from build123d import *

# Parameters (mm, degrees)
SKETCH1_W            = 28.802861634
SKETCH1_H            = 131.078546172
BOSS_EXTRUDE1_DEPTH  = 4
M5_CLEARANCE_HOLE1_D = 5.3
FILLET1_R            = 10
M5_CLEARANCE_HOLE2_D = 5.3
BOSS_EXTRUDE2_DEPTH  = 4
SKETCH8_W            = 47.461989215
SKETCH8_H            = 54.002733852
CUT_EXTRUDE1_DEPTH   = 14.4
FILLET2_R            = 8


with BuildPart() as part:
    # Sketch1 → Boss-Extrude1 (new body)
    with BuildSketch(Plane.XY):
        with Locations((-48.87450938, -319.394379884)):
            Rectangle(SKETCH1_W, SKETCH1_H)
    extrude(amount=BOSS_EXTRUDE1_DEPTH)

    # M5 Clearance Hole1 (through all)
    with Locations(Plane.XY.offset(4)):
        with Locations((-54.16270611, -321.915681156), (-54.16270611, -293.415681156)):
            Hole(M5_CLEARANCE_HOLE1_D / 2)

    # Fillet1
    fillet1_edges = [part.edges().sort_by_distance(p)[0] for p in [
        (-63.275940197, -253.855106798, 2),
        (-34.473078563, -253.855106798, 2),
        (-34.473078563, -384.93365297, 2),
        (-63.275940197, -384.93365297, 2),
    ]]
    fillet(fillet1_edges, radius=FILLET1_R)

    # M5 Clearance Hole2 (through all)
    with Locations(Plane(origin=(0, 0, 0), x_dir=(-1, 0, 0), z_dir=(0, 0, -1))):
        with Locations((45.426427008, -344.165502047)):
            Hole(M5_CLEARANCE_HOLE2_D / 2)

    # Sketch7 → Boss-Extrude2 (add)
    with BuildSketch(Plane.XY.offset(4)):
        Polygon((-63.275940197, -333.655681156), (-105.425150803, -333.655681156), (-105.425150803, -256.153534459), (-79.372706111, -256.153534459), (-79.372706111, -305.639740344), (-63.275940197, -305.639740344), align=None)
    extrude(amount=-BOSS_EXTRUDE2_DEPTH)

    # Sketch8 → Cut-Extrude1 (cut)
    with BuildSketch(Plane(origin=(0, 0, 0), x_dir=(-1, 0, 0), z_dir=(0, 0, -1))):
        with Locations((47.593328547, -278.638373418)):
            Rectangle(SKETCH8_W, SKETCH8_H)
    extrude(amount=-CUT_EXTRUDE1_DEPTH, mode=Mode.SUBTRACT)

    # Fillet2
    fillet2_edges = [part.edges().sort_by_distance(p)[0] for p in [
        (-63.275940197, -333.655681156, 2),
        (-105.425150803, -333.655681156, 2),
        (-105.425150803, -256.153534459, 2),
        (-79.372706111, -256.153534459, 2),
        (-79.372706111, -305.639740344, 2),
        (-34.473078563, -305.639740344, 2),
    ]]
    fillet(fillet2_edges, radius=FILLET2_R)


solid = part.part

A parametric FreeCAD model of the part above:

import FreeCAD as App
import Part
import Sketcher
from FreeCAD import Vector


def edges_at(feature, points):
    """Names of the edges that pass closest to the given points."""
    edges = feature.Shape.Edges
    near = lambda p: min(range(len(edges)), key=lambda i: edges[i].distToShape(Part.Vertex(*p))[0])
    return sorted({f"Edge{near(p) + 1}" for p in points})


def add_polygon(sketch, points):
    """Adds a closed chain of lines whose ends are joined by coincident constraints."""
    first, n = sketch.GeometryCount, len(points)
    for a, b in zip(points, points[1:] + points[:1]):
        sketch.addGeometry(Part.LineSegment(App.Vector(*a, 0), App.Vector(*b, 0)), False)
    for i in range(n):
        sketch.addConstraint(Sketcher.Constraint("Coincident", first + i, 2, first + (i + 1) % n, 1))

doc = App.newDocument("Part")
body = doc.addObject("PartDesign::Body", "Body")

sketch1 = body.newObject("Sketcher::SketchObject", "Sketch")
sketch1.AttachmentSupport = (doc.getObject("XY_Plane"), [""])
sketch1.MapMode = "FlatFace"
add_polygon(sketch1, [(-63, -254), (-63, -385), (-34, -385), (-34, -254)])
sketch1.addConstraint([
    Sketcher.Constraint("Vertical", 0),
    Sketcher.Constraint("Horizontal", 1),
    Sketcher.Constraint("Vertical", 2),
    Sketcher.Constraint("Horizontal", 3),
    Sketcher.Constraint("DistanceX", 1, 1, 1, 2, 28.802862),
    Sketcher.Constraint("DistanceY", 0, 2, 0, 1, 131.078546),
    Sketcher.Constraint("DistanceX", 0, 2, -1, 1, 63.27594),
    Sketcher.Constraint("DistanceY", 0, 2, -1, 1, 384.933653),
])
pad1 = body.newObject("PartDesign::Pad", "Pad")
pad1.Profile = sketch1
pad1.Length = 4

sketch2 = body.newObject("Sketcher::SketchObject", "Sketch001")
sketch2.AttachmentSupport = (doc.getObject("XY_Plane"), [""])
sketch2.MapMode = "FlatFace"
sketch2.AttachmentOffset = App.Placement(Vector(0, 0, 4), App.Rotation())
sketch2.addGeometry([
    Part.Circle(Vector(-54.2, -321.9, 0), Vector(0, 0, 1), 2.6),
    Part.Circle(Vector(-54.2, -293.4, 0), Vector(0, 0, 1), 2.6),
], False)
sketch2.addConstraint([
    Sketcher.Constraint("Equal", 0, 1),
    Sketcher.Constraint("Vertical", 0, 3, 1, 3),
    Sketcher.Constraint("Diameter", 0, 5.3),
    Sketcher.Constraint("DistanceY", 0, 3, 1, 3, 28.5),
    Sketcher.Constraint("DistanceY", 0, 3, -1, 1, 321.915681),
    Sketcher.Constraint("DistanceX", 0, 3, -1, 1, 54.162706),
])
doc.recompute()
hole = body.newObject("PartDesign::Hole", "Hole")
hole.Profile = sketch2
hole.ThreadType = "None"
hole.Diameter = 5.3
hole.DepthType = "ThroughAll"
doc.recompute()

fillet = body.newObject("PartDesign::Fillet", "Fillet")
fillet.Base = (hole, edges_at(hole, [
    (-63.276, -253.855, 2),
    (-34.473, -253.855, 2),
    (-34.473, -384.934, 2),
    (-63.276, -384.934, 2),
]))
fillet.Radius = 10

sketch3 = body.newObject("Sketcher::SketchObject", "Sketch002")
sketch3.AttachmentSupport = (doc.getObject("XY_Plane"), [""])
sketch3.MapMode = "FlatFace"
sketch3.addGeometry(Part.Circle(Vector(-45.4, -344.2, 0), Vector(0, 0, 1), 2.6), False)
sketch3.addConstraint([
    Sketcher.Constraint("Diameter", 0, 5.3),
    Sketcher.Constraint("DistanceX", 0, 3, -1, 1, 45.426427),
    Sketcher.Constraint("DistanceY", 0, 3, -1, 1, 344.165502),
])
doc.recompute()
hole2 = body.newObject("PartDesign::Hole", "Hole001")
hole2.Profile = sketch3
hole2.ThreadType = "None"
hole2.Diameter = 5.3
hole2.DepthType = "ThroughAll"
hole2.Reversed = True

sketch4 = body.newObject("Sketcher::SketchObject", "Sketch003")
sketch4.AttachmentSupport = (doc.getObject("XY_Plane"), [""])
sketch4.MapMode = "FlatFace"
sketch4.AttachmentOffset = App.Placement(Vector(0, 0, 4), App.Rotation())
add_polygon(sketch4, [(-105, -334), (-63, -334), (-63, -306), (-79, -306), (-79, -256), (-105, -256)])
sketch4.addConstraint([
    Sketcher.Constraint("Horizontal", 0),
    Sketcher.Constraint("Vertical", 1),
    Sketcher.Constraint("Horizontal", 2),
    Sketcher.Constraint("Vertical", 3),
    Sketcher.Constraint("Horizontal", 4),
    Sketcher.Constraint("Vertical", 5),
    Sketcher.Constraint("DistanceX", 0, 1, 0, 2, 42.149211),
    Sketcher.Constraint("DistanceY", 1, 1, 1, 2, 28.015941),
    Sketcher.Constraint("DistanceX", 2, 2, 2, 1, 16.096766),
    Sketcher.Constraint("DistanceY", 3, 1, 3, 2, 49.486206),
    Sketcher.Constraint("DistanceX", 0, 2, -1, 1, 63.27594),
    Sketcher.Constraint("DistanceY", 0, 2, -1, 1, 333.655681),
])
pad2 = body.newObject("PartDesign::Pad", "Pad001")
pad2.Profile = sketch4
pad2.Length = 4
pad2.Reversed = True

sketch5 = body.newObject("Sketcher::SketchObject", "Sketch004")
sketch5.AttachmentSupport = (doc.getObject("XY_Plane"), [""])
sketch5.MapMode = "FlatFace"
add_polygon(sketch5, [(-24, -252), (-24, -306), (-71, -306), (-71, -252)])
sketch5.addConstraint([
    Sketcher.Constraint("Vertical", 0),
    Sketcher.Constraint("Horizontal", 1),
    Sketcher.Constraint("Vertical", 2),
    Sketcher.Constraint("Horizontal", 3),
    Sketcher.Constraint("DistanceX", 1, 2, 1, 1, 47.461989),
    Sketcher.Constraint("DistanceY", 0, 2, 0, 1, 54.002734),
    Sketcher.Constraint("DistanceY", 0, 2, -1, 1, 305.63974),
    Sketcher.Constraint("DistanceX", 0, 2, -1, 1, 23.862334),
])
pocket1 = body.newObject("PartDesign::Pocket", "Pocket")
pocket1.Profile = sketch5
pocket1.Length = 14.4
pocket1.Reversed = True
doc.recompute()

fillet2 = body.newObject("PartDesign::Fillet", "Fillet001")
fillet2.Base = (pocket1, edges_at(pocket1, [
    (-63.276, -333.656, 2),
    (-105.425, -333.656, 2),
    (-105.425, -256.154, 2),
    (-79.373, -256.154, 2),
    (-79.373, -305.64, 2),
    (-34.473, -305.64, 2),
]))
fillet2.Radius = 8

doc.recompute()
